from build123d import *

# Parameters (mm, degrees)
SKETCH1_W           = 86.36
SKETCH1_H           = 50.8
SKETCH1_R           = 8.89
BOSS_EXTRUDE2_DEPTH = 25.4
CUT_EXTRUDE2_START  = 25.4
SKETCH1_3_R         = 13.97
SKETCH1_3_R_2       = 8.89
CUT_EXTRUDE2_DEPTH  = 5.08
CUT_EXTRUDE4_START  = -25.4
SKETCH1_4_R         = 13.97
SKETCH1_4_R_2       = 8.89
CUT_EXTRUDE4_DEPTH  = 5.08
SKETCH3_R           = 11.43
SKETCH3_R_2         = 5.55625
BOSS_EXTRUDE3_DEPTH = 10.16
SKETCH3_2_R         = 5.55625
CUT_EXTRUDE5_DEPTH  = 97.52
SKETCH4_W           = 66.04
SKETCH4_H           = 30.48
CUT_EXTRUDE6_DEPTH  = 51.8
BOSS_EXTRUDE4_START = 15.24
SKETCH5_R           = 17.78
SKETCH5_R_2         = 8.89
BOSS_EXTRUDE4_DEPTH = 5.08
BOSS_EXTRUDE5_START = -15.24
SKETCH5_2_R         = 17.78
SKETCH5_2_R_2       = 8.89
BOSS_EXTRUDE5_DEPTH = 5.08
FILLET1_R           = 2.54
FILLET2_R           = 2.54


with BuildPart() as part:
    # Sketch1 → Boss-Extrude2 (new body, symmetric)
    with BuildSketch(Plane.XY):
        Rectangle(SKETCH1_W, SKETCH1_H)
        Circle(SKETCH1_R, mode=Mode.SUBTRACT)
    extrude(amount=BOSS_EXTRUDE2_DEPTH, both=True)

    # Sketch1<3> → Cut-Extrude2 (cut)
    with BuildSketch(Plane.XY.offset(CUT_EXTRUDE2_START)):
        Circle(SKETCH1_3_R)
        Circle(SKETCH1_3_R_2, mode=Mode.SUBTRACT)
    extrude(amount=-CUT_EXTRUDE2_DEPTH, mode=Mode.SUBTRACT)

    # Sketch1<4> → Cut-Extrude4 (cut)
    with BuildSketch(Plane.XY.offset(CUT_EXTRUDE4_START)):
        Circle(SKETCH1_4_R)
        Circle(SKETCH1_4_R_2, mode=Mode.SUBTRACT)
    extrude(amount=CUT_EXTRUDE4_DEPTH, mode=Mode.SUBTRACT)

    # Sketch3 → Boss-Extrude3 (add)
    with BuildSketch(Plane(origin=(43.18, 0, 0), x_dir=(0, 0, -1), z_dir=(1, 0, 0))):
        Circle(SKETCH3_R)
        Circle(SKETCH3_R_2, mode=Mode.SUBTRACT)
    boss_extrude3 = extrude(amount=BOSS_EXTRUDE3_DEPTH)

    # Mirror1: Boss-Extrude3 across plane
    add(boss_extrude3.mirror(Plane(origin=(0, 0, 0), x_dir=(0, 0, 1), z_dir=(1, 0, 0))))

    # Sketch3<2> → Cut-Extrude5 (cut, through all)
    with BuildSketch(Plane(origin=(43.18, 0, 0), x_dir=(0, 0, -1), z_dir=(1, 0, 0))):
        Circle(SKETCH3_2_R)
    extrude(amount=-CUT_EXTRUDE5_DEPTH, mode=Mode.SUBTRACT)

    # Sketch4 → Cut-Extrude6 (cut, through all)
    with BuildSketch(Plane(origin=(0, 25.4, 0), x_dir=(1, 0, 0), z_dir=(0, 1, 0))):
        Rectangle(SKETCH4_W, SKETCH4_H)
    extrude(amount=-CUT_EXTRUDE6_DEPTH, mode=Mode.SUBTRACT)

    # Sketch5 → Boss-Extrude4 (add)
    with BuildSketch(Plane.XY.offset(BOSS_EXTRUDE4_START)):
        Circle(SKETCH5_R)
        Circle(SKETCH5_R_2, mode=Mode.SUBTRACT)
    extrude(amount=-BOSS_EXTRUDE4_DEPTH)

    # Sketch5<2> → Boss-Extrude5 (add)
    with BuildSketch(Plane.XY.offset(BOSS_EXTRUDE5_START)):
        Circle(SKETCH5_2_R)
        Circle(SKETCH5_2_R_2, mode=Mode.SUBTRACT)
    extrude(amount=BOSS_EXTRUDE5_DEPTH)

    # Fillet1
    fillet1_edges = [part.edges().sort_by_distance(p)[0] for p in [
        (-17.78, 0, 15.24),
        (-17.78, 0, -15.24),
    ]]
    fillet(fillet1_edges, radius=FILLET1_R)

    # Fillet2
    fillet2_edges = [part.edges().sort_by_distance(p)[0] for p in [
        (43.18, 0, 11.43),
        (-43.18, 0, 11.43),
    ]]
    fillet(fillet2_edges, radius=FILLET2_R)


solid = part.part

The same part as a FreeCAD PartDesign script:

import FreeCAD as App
import Part
import Sketcher
Q = App.Units.Quantity


def edges_at(feature, points):
    """Names of the edges that pass closest to the given points."""
    edges = feature.Shape.Edges
    near = lambda p: min(range(len(edges)), key=lambda i: edges[i].distToShape(Part.Vertex(*p))[0])
    return sorted({f"Edge{near(p) + 1}" for p in points})

doc = App.newDocument("Part")
params = doc.addObject("Spreadsheet::Sheet", "Params")
for row, (alias, value) in enumerate([
    ("sketch1_diameter", "0.7 in"),
    ("sketch1_height", "2 in"),
    ("sketch1_width", "3.4 in"),
    ("pad1_length", "2 in"),
    ("sketch2_diameter", "1.1 in"),
    ("sketch2_diameter2", "0.7 in"),
    ("pocket1_length", "0.2 in"),
    ("sketch3_diameter", "1.1 in"),
    ("sketch3_diameter2", "0.7 in"),
    ("pocket2_length", "0.2 in"),
    ("sketch4_diameter", "0.9 in"),
    ("sketch4_diameter2", "0.4375 in"),
    ("pad2_length", "0.4 in"),
    ("sketch5_diameter", "0.4375 in"),
    ("sketch6_width", "2.6 in"),
    ("sketch6_height", "1.2 in"),
    ("sketch7_diameter", "1.4 in"),
    ("sketch7_diameter2", "0.7 in"),
    ("pad3_length", "0.2 in"),
    ("sketch8_diameter", "1.4 in"),
    ("sketch8_diameter2", "0.7 in"),
    ("pad4_length", "0.2 in"),
    ("fillet_radius", "0.1 in"),
    ("fillet2_radius", "0.1 in"),
], start=1):
    params.set(f"A{row}", alias)
    params.set(f"B{row}", "=" + value)
    params.setAlias(f"B{row}", alias)

body = doc.addObject("PartDesign::Body", "Body")

# Sketch on XY plane
sketch1 = doc.addObject("Sketcher::SketchObject", "Sketch")
body.addObject(sketch1)
sketch1.AttachmentSupport = (doc.XY_Plane, [""])
sketch1.MapMode = "FlatFace"
sketch1.addGeometry(Part.LineSegment(App.Vector(-43, 25, 0), App.Vector(-43, -25, 0)), False)
sketch1.addGeometry(Part.LineSegment(App.Vector(-43, -25, 0), App.Vector(43, -25, 0)), False)
sketch1.addGeometry(Part.LineSegment(App.Vector(43, -25, 0), App.Vector(43, 25, 0)), False)
sketch1.addGeometry(Part.LineSegment(App.Vector(43, 25, 0), App.Vector(-43, 25, 0)), False)
sketch1.addGeometry(Part.Circle(App.Vector(0, 0, 0), App.Vector(0, 0, 1), 9), False)
sketch1.addConstraint(Sketcher.Constraint("Coincident", 0, 2, 1, 1))
sketch1.addConstraint(Sketcher.Constraint("Coincident", 1, 2, 2, 1))
sketch1.addConstraint(Sketcher.Constraint("Coincident", 2, 2, 3, 1))
sketch1.addConstraint(Sketcher.Constraint("Coincident", 3, 2, 0, 1))
sketch1.addConstraint(Sketcher.Constraint("Vertical", 0))
sketch1.addConstraint(Sketcher.Constraint("Horizontal", 1))
sketch1.addConstraint(Sketcher.Constraint("Vertical", 2))
sketch1.addConstraint(Sketcher.Constraint("Horizontal", 3))
sketch1.addConstraint(Sketcher.Constraint("Coincident", 4, 3, -1, 1))
sketch1.addConstraint(Sketcher.Constraint("Symmetric", 0, 2, 2, 2, -1, 1))
sketch1.addConstraint(Sketcher.Constraint("Diameter", 4, Q("0.7 in")))
sketch1.addConstraint(Sketcher.Constraint("DistanceY", 0, 2, 0, 1, Q("2 in")))
sketch1.addConstraint(Sketcher.Constraint("DistanceX", 1, 1, 1, 2, Q("3.4 in")))
sketch1.setExpression("Constraints[10]", "Params.sketch1_diameter")
sketch1.setExpression("Constraints[11]", "Params.sketch1_height")
sketch1.setExpression("Constraints[12]", "Params.sketch1_width")
pad1 = doc.addObject("PartDesign::Pad", "Pad")
body.addObject(pad1)
pad1.Profile = sketch1
pad1.setExpression("Length", "Params.pad1_length")
pad1.Midplane = True

# Sketch on XY plane
sketch2 = doc.addObject("Sketcher::SketchObject", "Sketch001")
body.addObject(sketch2)
sketch2.AttachmentSupport = (doc.XY_Plane, [""])
sketch2.MapMode = "FlatFace"
sketch2.AttachmentOffset = App.Placement(App.Vector(0, 0, 1 * 25.4), App.Rotation())
sketch2.addGeometry(Part.Circle(App.Vector(0, 0, 0), App.Vector(0, 0, 1), 14), False)
sketch2.addGeometry(Part.Circle(App.Vector(0, 0, 0), App.Vector(0, 0, 1), 9), False)
sketch2.addConstraint(Sketcher.Constraint("Coincident", 0, 3, -1, 1))
sketch2.addConstraint(Sketcher.Constraint("Coincident", 1, 3, -1, 1))
sketch2.addConstraint(Sketcher.Constraint("Diameter", 0, Q("1.1 in")))
sketch2.addConstraint(Sketcher.Constraint("Diameter", 1, Q("0.7 in")))
sketch2.setExpression("Constraints[2]", "Params.sketch2_diameter")
sketch2.setExpression("Constraints[3]", "Params.sketch2_diameter2")
pocket1 = doc.addObject("PartDesign::Pocket", "Pocket")
body.addObject(pocket1)
pocket1.Profile = sketch2
pocket1.setExpression("Length", "Params.pocket1_length")

# Sketch on XY plane
sketch3 = doc.addObject("Sketcher::SketchObject", "Sketch002")
body.addObject(sketch3)
sketch3.AttachmentSupport = (doc.XY_Plane, [""])
sketch3.MapMode = "FlatFace"
sketch3.AttachmentOffset = App.Placement(App.Vector(0, 0, -1 * 25.4), App.Rotation())
sketch3.addGeometry(Part.Circle(App.Vector(0, 0, 0), App.Vector(0, 0, 1), 14), False)
sketch3.addGeometry(Part.Circle(App.Vector(0, 0, 0), App.Vector(0, 0, 1), 9), False)
sketch3.addConstraint(Sketcher.Constraint("Coincident", 0, 3, -1, 1))
sketch3.addConstraint(Sketcher.Constraint("Coincident", 1, 3, -1, 1))
sketch3.addConstraint(Sketcher.Constraint("Diameter", 0, Q("1.1 in")))
sketch3.addConstraint(Sketcher.Constraint("Diameter", 1, Q("0.7 in")))
sketch3.setExpression("Constraints[2]", "Params.sketch3_diameter")
sketch3.setExpression("Constraints[3]", "Params.sketch3_diameter2")
pocket2 = doc.addObject("PartDesign::Pocket", "Pocket001")
body.addObject(pocket2)
pocket2.Profile = sketch3
pocket2.setExpression("Length", "Params.pocket2_length")
pocket2.Reversed = True

# Sketch on YZ plane
sketch4 = doc.addObject("Sketcher::SketchObject", "Sketch003")
body.addObject(sketch4)
sketch4.AttachmentSupport = (doc.YZ_Plane, [""])
sketch4.MapMode = "FlatFace"
sketch4.AttachmentOffset = App.Placement(App.Vector(0, 0, 1.7 * 25.4), App.Rotation())
sketch4.addGeometry(Part.Circle(App.Vector(0, 0, 0), App.Vector(0, 0, 1), 11), False)
sketch4.addGeometry(Part.Circle(App.Vector(0, 0, 0), App.Vector(0, 0, 1), 6), False)
sketch4.addConstraint(Sketcher.Constraint("Coincident", 0, 3, -1, 1))
sketch4.addConstraint(Sketcher.Constraint("Coincident", 1, 3, -1, 1))
sketch4.addConstraint(Sketcher.Constraint("Diameter", 0, Q("0.9 in")))
sketch4.addConstraint(Sketcher.Constraint("Diameter", 1, Q("0.4375 in")))
sketch4.setExpression("Constraints[2]", "Params.sketch4_diameter")
sketch4.setExpression("Constraints[3]", "Params.sketch4_diameter2")
pad2 = doc.addObject("PartDesign::Pad", "Pad001")
body.addObject(pad2)
pad2.Profile = sketch4
pad2.setExpression("Length", "Params.pad2_length")
doc.recompute()

mirrored = doc.addObject("PartDesign::Mirrored", "Mirrored")
body.addObject(mirrored)
mirrored.Originals = [pad2]
mirrored.MirrorPlane = (doc.YZ_Plane, [""])
body.Tip = mirrored

# Sketch on YZ plane
sketch5 = doc.addObject("Sketcher::SketchObject", "Sketch004")
body.addObject(sketch5)
sketch5.AttachmentSupport = (doc.YZ_Plane, [""])
sketch5.MapMode = "FlatFace"
sketch5.AttachmentOffset = App.Placement(App.Vector(0, 0, 1.7 * 25.4), App.Rotation())
sketch5.addGeometry(Part.Circle(App.Vector(0, 0, 0), App.Vector(0, 0, 1), 6), False)
sketch5.addConstraint(Sketcher.Constraint("Coincident", 0, 3, -1, 1))
sketch5.addConstraint(Sketcher.Constraint("Diameter", 0, Q("0.4375 in")))
sketch5.setExpression("Constraints[1]", "Params.sketch5_diameter")
pocket3 = doc.addObject("PartDesign::Pocket", "Pocket002")
body.addObject(pocket3)
pocket3.Profile = sketch5
pocket3.Type = "ThroughAll"

# Sketch on XZ plane
sketch6 = doc.addObject("Sketcher::SketchObject", "Sketch005")
body.addObject(sketch6)
sketch6.AttachmentSupport = (doc.XZ_Plane, [""])
sketch6.MapMode = "FlatFace"
sketch6.AttachmentOffset = App.Placement(App.Vector(0, 0, -1 * 25.4), App.Rotation())
sketch6.addGeometry(Part.LineSegment(App.Vector(-33, -15, 0), App.Vector(-33, 15, 0)), False)
sketch6.addGeometry(Part.LineSegment(App.Vector(-33, 15, 0), App.Vector(33, 15, 0)), False)
sketch6.addGeometry(Part.LineSegment(App.Vector(33, 15, 0), App.Vector(33, -15, 0)), False)
sketch6.addGeometry(Part.LineSegment(App.Vector(33, -15, 0), App.Vector(-33, -15, 0)), False)
sketch6.addConstraint(Sketcher.Constraint("Coincident", 0, 2, 1, 1))
sketch6.addConstraint(Sketcher.Constraint("Coincident", 1, 2, 2, 1))
sketch6.addConstraint(Sketcher.Constraint("Coincident", 2, 2, 3, 1))
sketch6.addConstraint(Sketcher.Constraint("Coincident", 3, 2, 0, 1))
sketch6.addConstraint(Sketcher.Constraint("Vertical", 0))
sketch6.addConstraint(Sketcher.Constraint("Horizontal", 1))
sketch6.addConstraint(Sketcher.Constraint("Vertical", 2))
sketch6.addConstraint(Sketcher.Constraint("Horizontal", 3))
sketch6.addConstraint(Sketcher.Constraint("Symmetric", 0, 2, 2, 2, -1, 1))
sketch6.addConstraint(Sketcher.Constraint("DistanceX", 1, 1, 1, 2, Q("2.6 in")))
sketch6.addConstraint(Sketcher.Constraint("DistanceY", 0, 1, 0, 2, Q("1.2 in")))
sketch6.setExpression("Constraints[9]", "Params.sketch6_width")
sketch6.setExpression("Constraints[10]", "Params.sketch6_height")
pocket4 = doc.addObject("PartDesign::Pocket", "Pocket003")
body.addObject(pocket4)
pocket4.Profile = sketch6
pocket4.Type = "ThroughAll"
pocket4.Reversed = True

# Sketch on XY plane
sketch7 = doc.addObject("Sketcher::SketchObject", "Sketch006")
body.addObject(sketch7)
sketch7.AttachmentSupport = (doc.XY_Plane, [""])
sketch7.MapMode = "FlatFace"
sketch7.AttachmentOffset = App.Placement(App.Vector(0, 0, 0.6 * 25.4), App.Rotation())
sketch7.addGeometry(Part.Circle(App.Vector(0, 0, 0), App.Vector(0, 0, 1), 18), False)
sketch7.addGeometry(Part.Circle(App.Vector(0, 0, 0), App.Vector(0, 0, 1), 9), False)
sketch7.addConstraint(Sketcher.Constraint("Coincident", 0, 3, -1, 1))
sketch7.addConstraint(Sketcher.Constraint("Coincident", 1, 3, -1, 1))
sketch7.addConstraint(Sketcher.Constraint("Diameter", 0, Q("1.4 in")))
sketch7.addConstraint(Sketcher.Constraint("Diameter", 1, Q("0.7 in")))
sketch7.setExpression("Constraints[2]", "Params.sketch7_diameter")
sketch7.setExpression("Constraints[3]", "Params.sketch7_diameter2")
pad3 = doc.addObject("PartDesign::Pad", "Pad002")
body.addObject(pad3)
pad3.Profile = sketch7
pad3.setExpression("Length", "Params.pad3_length")
pad3.Reversed = True

# Sketch on XY plane
sketch8 = doc.addObject("Sketcher::SketchObject", "Sketch007")
body.addObject(sketch8)
sketch8.AttachmentSupport = (doc.XY_Plane, [""])
sketch8.MapMode = "FlatFace"
sketch8.AttachmentOffset = App.Placement(App.Vector(0, 0, -0.6 * 25.4), App.Rotation())
sketch8.addGeometry(Part.Circle(App.Vector(0, 0, 0), App.Vector(0, 0, 1), 18), False)
sketch8.addGeometry(Part.Circle(App.Vector(0, 0, 0), App.Vector(0, 0, 1), 9), False)
sketch8.addConstraint(Sketcher.Constraint("Coincident", 0, 3, -1, 1))
sketch8.addConstraint(Sketcher.Constraint("Coincident", 1, 3, -1, 1))
sketch8.addConstraint(Sketcher.Constraint("Diameter", 0, Q("1.4 in")))
sketch8.addConstraint(Sketcher.Constraint("Diameter", 1, Q("0.7 in")))
sketch8.setExpression("Constraints[2]", "Params.sketch8_diameter")
sketch8.setExpression("Constraints[3]", "Params.sketch8_diameter2")
pad4 = doc.addObject("PartDesign::Pad", "Pad003")
body.addObject(pad4)
pad4.Profile = sketch8
pad4.setExpression("Length", "Params.pad4_length")
doc.recompute()

fillet = doc.addObject("PartDesign::Fillet", "Fillet")
body.addObject(fillet)
fillet.Base = (pad4, edges_at(pad4, [(-17.78, 0, 15.24), (-17.78, 0, -15.24)]))
fillet.setExpression("Radius", "Params.fillet_radius")
doc.recompute()

fillet2 = doc.addObject("PartDesign::Fillet", "Fillet001")
body.addObject(fillet2)
fillet2.Base = (fillet, edges_at(fillet, [(43.18, 0, 11.43), (-43.18, 0, 11.43)]))
fillet2.setExpression("Radius", "Params.fillet2_radius")

doc.recompute()
